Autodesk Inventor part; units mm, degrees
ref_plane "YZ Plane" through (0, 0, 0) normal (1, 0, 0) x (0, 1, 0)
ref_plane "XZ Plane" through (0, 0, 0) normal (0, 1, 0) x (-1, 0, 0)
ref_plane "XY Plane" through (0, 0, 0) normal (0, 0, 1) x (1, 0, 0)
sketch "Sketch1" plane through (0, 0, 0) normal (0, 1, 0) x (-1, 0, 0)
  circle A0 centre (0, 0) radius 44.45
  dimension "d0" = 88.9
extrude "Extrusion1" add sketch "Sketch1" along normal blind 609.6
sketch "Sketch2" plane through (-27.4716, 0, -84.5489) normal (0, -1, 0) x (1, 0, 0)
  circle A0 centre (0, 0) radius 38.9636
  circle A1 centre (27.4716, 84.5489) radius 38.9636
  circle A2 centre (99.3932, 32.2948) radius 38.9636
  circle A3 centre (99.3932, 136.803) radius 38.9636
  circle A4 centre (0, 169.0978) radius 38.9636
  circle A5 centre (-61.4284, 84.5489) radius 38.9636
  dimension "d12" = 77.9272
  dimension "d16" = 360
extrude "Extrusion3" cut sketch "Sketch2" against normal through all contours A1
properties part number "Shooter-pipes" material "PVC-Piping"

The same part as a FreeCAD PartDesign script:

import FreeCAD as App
import Part
import Sketcher
from FreeCAD import Vector
Q = App.Units.Quantity

doc = App.newDocument("Part")
body = doc.addObject("PartDesign::Body", "Body")

# Sketch on XZ plane
sketch1 = body.newObject("Sketcher::SketchObject", "Sketch")
sketch1.AttachmentSupport = (doc.getObject("XZ_Plane"), [""])
sketch1.MapMode = "FlatFace"
sketch1.addGeometry(Part.Circle(Vector(0, 0, 0), Vector(0, 0, 1), 44.45), False)
sketch1.addConstraint([
    Sketcher.Constraint("Coincident", 0, 3, -1, 1),
    Sketcher.Constraint("Diameter", 0, Q("3.5 in")),
])
pad1 = body.newObject("PartDesign::Pad", "Pad")
pad1.Profile = sketch1
pad1.Length = Q("24 in")
pad1.Reversed = True

# Sketch on XZ plane
sketch2 = body.newObject("Sketcher::SketchObject", "Sketch001")
sketch2.AttachmentSupport = (doc.getObject("XZ_Plane"), [""])
sketch2.MapMode = "FlatFace"
sketch2.addGeometry(Part.Circle(Vector(0, 0, 0), Vector(0, 0, 1), 38.9636), False)
sketch2.addConstraint([
    Sketcher.Constraint("Coincident", 0, 3, -1, 1),
    Sketcher.Constraint("Diameter", 0, Q("3.068 in")),
])
pocket1 = body.newObject("PartDesign::Pocket", "Pocket")
pocket1.Profile = sketch2
pocket1.Type = "ThroughAll"

doc.recompute()
